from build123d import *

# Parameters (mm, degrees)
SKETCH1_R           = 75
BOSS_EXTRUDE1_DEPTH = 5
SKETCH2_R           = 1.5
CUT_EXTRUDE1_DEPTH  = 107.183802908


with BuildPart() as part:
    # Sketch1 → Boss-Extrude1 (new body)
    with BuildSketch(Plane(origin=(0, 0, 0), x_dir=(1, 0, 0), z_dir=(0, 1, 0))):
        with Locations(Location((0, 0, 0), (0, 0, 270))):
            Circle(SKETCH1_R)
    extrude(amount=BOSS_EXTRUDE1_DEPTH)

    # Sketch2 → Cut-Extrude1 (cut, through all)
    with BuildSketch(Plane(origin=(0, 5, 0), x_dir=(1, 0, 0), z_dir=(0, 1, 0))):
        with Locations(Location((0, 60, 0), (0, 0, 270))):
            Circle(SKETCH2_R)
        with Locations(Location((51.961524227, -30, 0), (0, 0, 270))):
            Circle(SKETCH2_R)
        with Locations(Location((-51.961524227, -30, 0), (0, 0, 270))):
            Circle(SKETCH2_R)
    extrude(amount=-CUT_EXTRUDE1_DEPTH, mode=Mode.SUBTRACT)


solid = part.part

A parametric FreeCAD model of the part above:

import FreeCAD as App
import Part
import Sketcher
from FreeCAD import Vector
Q = App.Units.Quantity

doc = App.newDocument("Part")
params = doc.addObject("Spreadsheet::Sheet", "Params")
for row, (alias, value) in enumerate([
    ("sketch1_diameter", "150 mm"),
    ("pad1_length", "5 mm"),
    ("sketch2_diameter", "3 mm"),
], start=1):
    params.set(f"A{row}", alias)
    params.set(f"B{row}", "=" + value)
    params.setAlias(f"B{row}", alias)

body = doc.addObject("PartDesign::Body", "Body")

sketch1 = doc.addObject("Sketcher::SketchObject", "Sketch")
body.addObject(sketch1)
sketch1.AttachmentSupport = (doc.XZ_Plane, [""])
sketch1.MapMode = "FlatFace"
sketch1.addGeometry(Part.Circle(Vector(0, 0, 0), Vector(0, 0, 1), 75), False)
sketch1.addConstraint([
    Sketcher.Constraint("Coincident", 0, 3, -1, 1),
    Sketcher.Constraint("Diameter", 0, Q("150 mm")),
])
sketch1.setExpression("Constraints[1]", "Params.sketch1_diameter")
pad1 = doc.addObject("PartDesign::Pad", "Pad")
body.addObject(pad1)
pad1.Profile = sketch1
pad1.setExpression("Length", "Params.pad1_length")
pad1.Reversed = True

sketch2 = doc.addObject("Sketcher::SketchObject", "Sketch001")
body.addObject(sketch2)
sketch2.AttachmentSupport = (doc.XZ_Plane, [""])
sketch2.MapMode = "FlatFace"
sketch2.AttachmentOffset = App.Placement(Vector(0, 0, -5), App.Rotation())
sketch2.addGeometry([
    Part.Circle(Vector(0, -60, 0), Vector(0, 0, 1), 1.5),
    Part.Circle(Vector(51.961524, 30, 0), Vector(0, 0, 1), 1.5),
    Part.Circle(Vector(-51.961524, 30, 0), Vector(0, 0, 1), 1.5),
], False)
sketch2.addConstraint([
    Sketcher.Constraint("Equal", 0, 1),
    Sketcher.Constraint("Equal", 1, 2),
    Sketcher.Constraint("Symmetric", 1, 3, 2, 3, -2),
    Sketcher.Constraint("PointOnObject", 0, 3, -2),
    Sketcher.Constraint("Diameter", 0, Q("3 mm")),
    Sketcher.Constraint("DistanceY", 0, 3, -1, 1, Q("60 mm")),
    Sketcher.Constraint("DistanceY", -1, 1, 1, 3, Q("30 mm")),
    Sketcher.Constraint("DistanceX", 2, 3, 1, 3, Q("103.923048 mm")),
])
sketch2.setExpression("Constraints[4]", "Params.sketch2_diameter")
pocket1 = doc.addObject("PartDesign::Pocket", "Pocket")
body.addObject(pocket1)
pocket1.Profile = sketch2
pocket1.Type = "ThroughAll"
pocket1.Reversed = True

doc.recompute()
